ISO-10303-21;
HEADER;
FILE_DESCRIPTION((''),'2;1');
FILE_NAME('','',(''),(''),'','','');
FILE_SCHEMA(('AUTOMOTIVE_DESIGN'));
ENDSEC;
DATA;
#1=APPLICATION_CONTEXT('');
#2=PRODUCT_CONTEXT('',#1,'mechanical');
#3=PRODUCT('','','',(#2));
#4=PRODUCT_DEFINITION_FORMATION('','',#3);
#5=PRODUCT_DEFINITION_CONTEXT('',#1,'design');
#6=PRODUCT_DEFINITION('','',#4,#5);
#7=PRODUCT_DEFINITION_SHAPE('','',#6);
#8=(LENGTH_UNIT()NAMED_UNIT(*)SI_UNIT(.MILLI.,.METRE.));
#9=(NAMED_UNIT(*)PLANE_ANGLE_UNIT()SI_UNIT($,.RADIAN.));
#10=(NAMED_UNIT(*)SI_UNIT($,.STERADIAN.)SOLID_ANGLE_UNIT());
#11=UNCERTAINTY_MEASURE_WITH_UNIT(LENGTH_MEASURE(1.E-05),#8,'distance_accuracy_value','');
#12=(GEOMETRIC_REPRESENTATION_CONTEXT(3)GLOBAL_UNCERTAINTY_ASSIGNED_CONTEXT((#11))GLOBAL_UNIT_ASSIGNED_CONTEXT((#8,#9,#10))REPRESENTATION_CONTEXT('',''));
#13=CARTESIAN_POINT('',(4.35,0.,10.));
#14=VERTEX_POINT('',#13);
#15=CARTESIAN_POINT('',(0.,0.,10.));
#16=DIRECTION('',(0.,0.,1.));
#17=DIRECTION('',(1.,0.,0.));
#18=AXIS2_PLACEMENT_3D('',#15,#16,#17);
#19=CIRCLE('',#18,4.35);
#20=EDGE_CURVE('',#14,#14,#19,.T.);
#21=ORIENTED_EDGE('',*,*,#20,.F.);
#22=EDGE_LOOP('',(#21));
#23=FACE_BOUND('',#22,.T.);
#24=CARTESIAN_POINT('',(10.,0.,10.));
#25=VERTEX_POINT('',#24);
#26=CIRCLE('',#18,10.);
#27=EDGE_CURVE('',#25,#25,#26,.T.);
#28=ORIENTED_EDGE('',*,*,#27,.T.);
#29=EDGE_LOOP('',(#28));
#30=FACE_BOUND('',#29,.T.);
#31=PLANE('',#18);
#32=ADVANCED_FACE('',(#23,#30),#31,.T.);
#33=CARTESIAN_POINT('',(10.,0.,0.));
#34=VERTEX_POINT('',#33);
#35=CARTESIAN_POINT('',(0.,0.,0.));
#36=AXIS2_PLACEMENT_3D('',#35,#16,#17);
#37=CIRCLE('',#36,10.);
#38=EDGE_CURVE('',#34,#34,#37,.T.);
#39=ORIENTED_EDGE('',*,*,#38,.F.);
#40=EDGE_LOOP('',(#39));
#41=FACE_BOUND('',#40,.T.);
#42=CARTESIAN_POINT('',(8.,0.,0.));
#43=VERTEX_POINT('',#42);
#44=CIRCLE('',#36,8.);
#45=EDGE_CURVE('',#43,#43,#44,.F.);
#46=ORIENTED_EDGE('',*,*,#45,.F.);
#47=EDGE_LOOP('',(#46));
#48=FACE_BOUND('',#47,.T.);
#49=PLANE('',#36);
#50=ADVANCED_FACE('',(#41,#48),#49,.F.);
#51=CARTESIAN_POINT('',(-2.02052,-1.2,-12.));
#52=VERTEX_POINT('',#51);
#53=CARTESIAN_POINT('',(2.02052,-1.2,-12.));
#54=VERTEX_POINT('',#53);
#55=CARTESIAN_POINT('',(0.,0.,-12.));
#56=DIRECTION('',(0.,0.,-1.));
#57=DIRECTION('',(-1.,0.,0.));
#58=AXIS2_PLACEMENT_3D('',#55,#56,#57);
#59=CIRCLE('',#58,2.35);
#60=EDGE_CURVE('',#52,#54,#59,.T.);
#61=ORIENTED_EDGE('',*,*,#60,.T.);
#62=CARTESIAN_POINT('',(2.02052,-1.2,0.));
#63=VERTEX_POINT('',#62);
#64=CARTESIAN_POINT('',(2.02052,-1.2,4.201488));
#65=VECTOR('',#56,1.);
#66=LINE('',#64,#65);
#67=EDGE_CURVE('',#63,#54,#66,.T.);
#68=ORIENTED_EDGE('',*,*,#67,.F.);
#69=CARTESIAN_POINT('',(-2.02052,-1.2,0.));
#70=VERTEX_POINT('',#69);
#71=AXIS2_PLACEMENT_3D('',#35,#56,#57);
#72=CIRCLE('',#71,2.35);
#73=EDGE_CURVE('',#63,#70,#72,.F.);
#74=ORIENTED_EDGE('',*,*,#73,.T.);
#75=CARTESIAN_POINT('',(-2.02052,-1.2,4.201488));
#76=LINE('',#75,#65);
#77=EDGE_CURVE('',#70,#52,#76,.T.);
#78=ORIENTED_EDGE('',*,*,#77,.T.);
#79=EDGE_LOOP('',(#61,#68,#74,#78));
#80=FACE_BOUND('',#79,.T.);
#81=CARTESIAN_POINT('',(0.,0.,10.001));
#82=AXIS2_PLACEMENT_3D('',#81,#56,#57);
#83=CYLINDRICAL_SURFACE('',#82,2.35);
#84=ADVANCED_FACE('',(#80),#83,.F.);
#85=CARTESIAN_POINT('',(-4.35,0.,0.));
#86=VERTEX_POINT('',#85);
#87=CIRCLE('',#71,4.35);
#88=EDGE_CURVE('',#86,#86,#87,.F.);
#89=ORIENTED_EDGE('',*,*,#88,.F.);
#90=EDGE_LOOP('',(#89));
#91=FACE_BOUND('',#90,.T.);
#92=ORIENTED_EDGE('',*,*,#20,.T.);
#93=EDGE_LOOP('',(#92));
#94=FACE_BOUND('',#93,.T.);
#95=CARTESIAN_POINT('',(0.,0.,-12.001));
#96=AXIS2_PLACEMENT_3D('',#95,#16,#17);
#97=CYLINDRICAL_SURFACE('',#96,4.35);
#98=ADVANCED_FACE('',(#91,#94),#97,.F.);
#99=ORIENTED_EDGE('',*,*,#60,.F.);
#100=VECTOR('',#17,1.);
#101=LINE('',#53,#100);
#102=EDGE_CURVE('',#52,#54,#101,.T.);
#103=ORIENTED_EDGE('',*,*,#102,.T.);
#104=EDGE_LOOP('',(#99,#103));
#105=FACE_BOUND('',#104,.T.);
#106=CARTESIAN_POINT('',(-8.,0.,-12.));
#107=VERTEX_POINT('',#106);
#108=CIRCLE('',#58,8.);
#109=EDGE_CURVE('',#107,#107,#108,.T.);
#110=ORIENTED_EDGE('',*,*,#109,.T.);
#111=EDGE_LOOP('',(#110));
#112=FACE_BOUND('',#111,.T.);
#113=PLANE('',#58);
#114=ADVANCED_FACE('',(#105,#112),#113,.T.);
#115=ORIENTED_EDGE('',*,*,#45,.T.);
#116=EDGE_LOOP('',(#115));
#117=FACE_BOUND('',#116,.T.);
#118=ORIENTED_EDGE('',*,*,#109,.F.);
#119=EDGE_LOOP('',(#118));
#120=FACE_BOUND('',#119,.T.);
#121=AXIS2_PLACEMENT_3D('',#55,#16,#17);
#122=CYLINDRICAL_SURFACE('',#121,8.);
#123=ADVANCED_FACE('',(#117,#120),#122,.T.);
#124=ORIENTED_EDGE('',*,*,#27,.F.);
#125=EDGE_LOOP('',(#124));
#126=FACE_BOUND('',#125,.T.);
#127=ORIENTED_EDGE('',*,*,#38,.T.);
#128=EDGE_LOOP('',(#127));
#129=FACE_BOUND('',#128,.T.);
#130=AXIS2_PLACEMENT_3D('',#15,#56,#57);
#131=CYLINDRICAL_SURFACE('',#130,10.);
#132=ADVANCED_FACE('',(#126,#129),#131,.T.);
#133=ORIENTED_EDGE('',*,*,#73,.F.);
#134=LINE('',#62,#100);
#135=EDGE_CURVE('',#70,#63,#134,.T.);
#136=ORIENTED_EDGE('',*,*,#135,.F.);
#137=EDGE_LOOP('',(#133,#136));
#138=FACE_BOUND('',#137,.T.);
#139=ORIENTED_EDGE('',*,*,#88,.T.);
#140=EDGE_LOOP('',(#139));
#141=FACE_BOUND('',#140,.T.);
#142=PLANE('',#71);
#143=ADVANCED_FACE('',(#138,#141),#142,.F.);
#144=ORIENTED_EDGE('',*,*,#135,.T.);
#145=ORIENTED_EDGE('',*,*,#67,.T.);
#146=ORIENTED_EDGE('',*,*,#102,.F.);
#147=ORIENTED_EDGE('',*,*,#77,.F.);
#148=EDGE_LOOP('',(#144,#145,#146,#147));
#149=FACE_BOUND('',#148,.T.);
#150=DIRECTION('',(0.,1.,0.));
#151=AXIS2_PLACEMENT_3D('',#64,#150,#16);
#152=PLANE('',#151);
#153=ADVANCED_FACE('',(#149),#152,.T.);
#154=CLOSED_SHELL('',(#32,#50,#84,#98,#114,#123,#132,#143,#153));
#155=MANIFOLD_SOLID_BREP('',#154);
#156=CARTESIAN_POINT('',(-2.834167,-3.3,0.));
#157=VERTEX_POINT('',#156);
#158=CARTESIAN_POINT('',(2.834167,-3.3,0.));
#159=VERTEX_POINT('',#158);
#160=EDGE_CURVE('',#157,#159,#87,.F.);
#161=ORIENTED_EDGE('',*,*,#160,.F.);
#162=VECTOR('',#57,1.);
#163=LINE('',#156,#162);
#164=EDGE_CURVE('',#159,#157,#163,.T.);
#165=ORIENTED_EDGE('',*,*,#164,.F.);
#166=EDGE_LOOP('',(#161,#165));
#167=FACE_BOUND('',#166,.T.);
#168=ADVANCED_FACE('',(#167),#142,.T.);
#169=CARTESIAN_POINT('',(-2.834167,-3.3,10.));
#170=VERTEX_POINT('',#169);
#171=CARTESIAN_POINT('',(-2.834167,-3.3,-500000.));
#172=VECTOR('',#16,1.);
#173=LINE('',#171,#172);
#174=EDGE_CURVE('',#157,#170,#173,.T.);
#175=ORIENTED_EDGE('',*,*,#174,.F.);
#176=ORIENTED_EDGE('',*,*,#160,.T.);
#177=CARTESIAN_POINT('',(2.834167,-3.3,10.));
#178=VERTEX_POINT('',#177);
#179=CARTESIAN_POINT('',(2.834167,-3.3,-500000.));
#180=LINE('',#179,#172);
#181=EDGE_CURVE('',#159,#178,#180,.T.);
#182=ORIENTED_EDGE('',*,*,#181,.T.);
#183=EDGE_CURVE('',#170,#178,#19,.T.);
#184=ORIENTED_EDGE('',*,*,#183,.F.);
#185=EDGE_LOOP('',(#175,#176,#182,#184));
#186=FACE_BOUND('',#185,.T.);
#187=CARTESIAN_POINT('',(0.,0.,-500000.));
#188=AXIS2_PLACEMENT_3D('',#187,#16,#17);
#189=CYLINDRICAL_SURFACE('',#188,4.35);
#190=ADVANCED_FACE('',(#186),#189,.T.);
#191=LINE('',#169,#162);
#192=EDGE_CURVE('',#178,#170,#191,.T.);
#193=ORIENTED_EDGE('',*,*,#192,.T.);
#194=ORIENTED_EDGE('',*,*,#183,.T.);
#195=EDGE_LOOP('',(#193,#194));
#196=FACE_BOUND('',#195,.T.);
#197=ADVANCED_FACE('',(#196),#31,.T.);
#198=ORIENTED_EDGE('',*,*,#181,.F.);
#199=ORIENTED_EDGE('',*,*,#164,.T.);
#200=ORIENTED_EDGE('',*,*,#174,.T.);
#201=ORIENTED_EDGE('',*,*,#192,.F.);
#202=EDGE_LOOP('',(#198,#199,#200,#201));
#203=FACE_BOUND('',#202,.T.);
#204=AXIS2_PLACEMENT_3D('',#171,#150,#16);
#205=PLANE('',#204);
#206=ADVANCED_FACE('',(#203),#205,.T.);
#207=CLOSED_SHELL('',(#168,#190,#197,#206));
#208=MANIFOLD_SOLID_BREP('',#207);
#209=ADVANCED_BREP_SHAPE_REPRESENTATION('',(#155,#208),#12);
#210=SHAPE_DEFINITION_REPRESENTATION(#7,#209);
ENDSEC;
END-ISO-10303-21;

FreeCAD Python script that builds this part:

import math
import FreeCAD as App
import Part
import Sketcher
from FreeCAD import Vector
Q = App.Units.Quantity

doc = App.newDocument("Part")
body = doc.addObject("PartDesign::Body", "Body")

sketch1 = doc.addObject("Sketcher::SketchObject", "Sketch")
body.addObject(sketch1)
sketch1.AttachmentSupport = (doc.XY_Plane, [""])
sketch1.MapMode = "FlatFace"
sketch1.addGeometry(Part.Circle(Vector(0, 0, 0), Vector(0, 0, 1), 10), False)
sketch1.addConstraint([
    Sketcher.Constraint("Coincident", 0, 3, -1, 1),
    Sketcher.Constraint("Diameter", 0, Q("20 mm")),
])
pad1 = doc.addObject("PartDesign::Pad", "Pad")
body.addObject(pad1)
pad1.Profile = sketch1
pad1.Length = 10

sketch2 = doc.addObject("Sketcher::SketchObject", "Sketch001")
body.addObject(sketch2)
sketch2.AttachmentSupport = (doc.XY_Plane, [""])
sketch2.MapMode = "FlatFace"
sketch2.AttachmentOffset = App.Placement(Vector(0, 0, 10), App.Rotation())
sketch2.addGeometry(Part.Circle(Vector(0, 0, 0), Vector(0, 0, 1), 4.35), False)
sketch2.addConstraint([
    Sketcher.Constraint("Coincident", 0, 3, -1, 1),
    Sketcher.Constraint("Diameter", 0, Q("8.7 mm")),
])
pocket1 = doc.addObject("PartDesign::Pocket", "Pocket")
body.addObject(pocket1)
pocket1.Profile = sketch2
pocket1.Length = 10
body2 = doc.addObject("PartDesign::Body", "Body001")

sketch3 = doc.addObject("Sketcher::SketchObject", "Sketch002")
body2.addObject(sketch3)
sketch3.AttachmentSupport = (doc.getObject("XY_Plane001"), [""])
sketch3.MapMode = "FlatFace"
sketch3.addGeometry(Part.Circle(Vector(0, 0, 0), Vector(0, 0, 1), 8), False)
sketch3.addConstraint([
    Sketcher.Constraint("Coincident", 0, 3, -1, 1),
    Sketcher.Constraint("Diameter", 0, Q("16 mm")),
])
pad2 = doc.addObject("PartDesign::Pad", "Pad001")
body2.addObject(pad2)
pad2.Profile = sketch3
pad2.Length = 12
pad2.Reversed = True

sketch4 = doc.addObject("Sketcher::SketchObject", "Sketch003")
body2.addObject(sketch4)
sketch4.AttachmentSupport = (doc.getObject("XY_Plane001"), [""])
sketch4.MapMode = "FlatFace"
sketch4.AttachmentOffset = App.Placement(Vector(0, 0, -12), App.Rotation())
sketch4.addGeometry(Part.Circle(Vector(0, 0, 0), Vector(0, 0, 1), 2.35), False)
sketch4.addConstraint([
    Sketcher.Constraint("Coincident", 0, 3, -1, 1),
    Sketcher.Constraint("Diameter", 0, Q("4.7 mm")),
])
pocket2 = doc.addObject("PartDesign::Pocket", "Pocket001")
body2.addObject(pocket2)
pocket2.Profile = sketch4
pocket2.Length = 12
pocket2.Reversed = True
body3 = doc.addObject("PartDesign::Body", "Body002")

sketch5 = doc.addObject("Sketcher::SketchObject", "Sketch004")
body3.addObject(sketch5)
sketch5.AttachmentSupport = (doc.getObject("XY_Plane002"), [""])
sketch5.MapMode = "FlatFace"
sketch5.AttachmentOffset = App.Placement(Vector(0, 0, 10), App.Rotation())
sketch5.addGeometry([
    Part.LineSegment(Vector(2.834167, -3.3, 0), Vector(-2.834167, -3.3, 0)),
    Part.ArcOfCircle(Part.Circle(Vector(0, 0, 0), Vector(0, 0, 1), 4.35), math.radians(-130.657249), math.radians(-49.342751)),
], False)
sketch5.addConstraint([
    Sketcher.Constraint("Coincident", 0, 1, 1, 2),
    Sketcher.Constraint("Coincident", 1, 1, 0, 2),
    Sketcher.Constraint("Horizontal", 0),
    Sketcher.Constraint("Coincident", 1, 3, -1, 1),
    Sketcher.Constraint("Radius", 1, Q("4.35 mm")),
    Sketcher.Constraint("DistanceY", 0, 1, -1, 1, Q("3.3 mm")),
])
pad3 = doc.addObject("PartDesign::Pad", "Pad002")
body3.addObject(pad3)
pad3.Profile = sketch5
pad3.Length = 10
pad3.Reversed = True
doc.recompute()

boolean = doc.addObject("PartDesign::Boolean", "Boolean")
body.addObject(boolean)
boolean.Type = "Fuse"
boolean.addObjects([body2])

sketch6 = doc.addObject("Sketcher::SketchObject", "Sketch005")
body.addObject(sketch6)
sketch6.AttachmentSupport = (doc.XY_Plane, [""])
sketch6.MapMode = "FlatFace"
sketch6.AttachmentOffset = App.Placement(Vector(0, 0, -12), App.Rotation())
sketch6.addGeometry([
    Part.LineSegment(Vector(-2.02052, -1.2, 0), Vector(2.02052, -1.2, 0)),
    Part.ArcOfCircle(Part.Circle(Vector(0, 0, 0), Vector(0, 0, 1), 2.35), math.radians(-149.293644), math.radians(-30.706356)),
], False)
sketch6.addConstraint([
    Sketcher.Constraint("Coincident", 0, 1, 1, 1),
    Sketcher.Constraint("Coincident", 1, 2, 0, 2),
    Sketcher.Constraint("Horizontal", 0),
    Sketcher.Constraint("Coincident", 1, 3, -1, 1),
    Sketcher.Constraint("Radius", 1, Q("2.35 mm")),
    Sketcher.Constraint("DistanceY", 0, 1, -1, 1, Q("1.2 mm")),
])
pad4 = doc.addObject("PartDesign::Pad", "Pad003")
body.addObject(pad4)
pad4.Profile = sketch6
pad4.Length = 12

doc.recompute()
